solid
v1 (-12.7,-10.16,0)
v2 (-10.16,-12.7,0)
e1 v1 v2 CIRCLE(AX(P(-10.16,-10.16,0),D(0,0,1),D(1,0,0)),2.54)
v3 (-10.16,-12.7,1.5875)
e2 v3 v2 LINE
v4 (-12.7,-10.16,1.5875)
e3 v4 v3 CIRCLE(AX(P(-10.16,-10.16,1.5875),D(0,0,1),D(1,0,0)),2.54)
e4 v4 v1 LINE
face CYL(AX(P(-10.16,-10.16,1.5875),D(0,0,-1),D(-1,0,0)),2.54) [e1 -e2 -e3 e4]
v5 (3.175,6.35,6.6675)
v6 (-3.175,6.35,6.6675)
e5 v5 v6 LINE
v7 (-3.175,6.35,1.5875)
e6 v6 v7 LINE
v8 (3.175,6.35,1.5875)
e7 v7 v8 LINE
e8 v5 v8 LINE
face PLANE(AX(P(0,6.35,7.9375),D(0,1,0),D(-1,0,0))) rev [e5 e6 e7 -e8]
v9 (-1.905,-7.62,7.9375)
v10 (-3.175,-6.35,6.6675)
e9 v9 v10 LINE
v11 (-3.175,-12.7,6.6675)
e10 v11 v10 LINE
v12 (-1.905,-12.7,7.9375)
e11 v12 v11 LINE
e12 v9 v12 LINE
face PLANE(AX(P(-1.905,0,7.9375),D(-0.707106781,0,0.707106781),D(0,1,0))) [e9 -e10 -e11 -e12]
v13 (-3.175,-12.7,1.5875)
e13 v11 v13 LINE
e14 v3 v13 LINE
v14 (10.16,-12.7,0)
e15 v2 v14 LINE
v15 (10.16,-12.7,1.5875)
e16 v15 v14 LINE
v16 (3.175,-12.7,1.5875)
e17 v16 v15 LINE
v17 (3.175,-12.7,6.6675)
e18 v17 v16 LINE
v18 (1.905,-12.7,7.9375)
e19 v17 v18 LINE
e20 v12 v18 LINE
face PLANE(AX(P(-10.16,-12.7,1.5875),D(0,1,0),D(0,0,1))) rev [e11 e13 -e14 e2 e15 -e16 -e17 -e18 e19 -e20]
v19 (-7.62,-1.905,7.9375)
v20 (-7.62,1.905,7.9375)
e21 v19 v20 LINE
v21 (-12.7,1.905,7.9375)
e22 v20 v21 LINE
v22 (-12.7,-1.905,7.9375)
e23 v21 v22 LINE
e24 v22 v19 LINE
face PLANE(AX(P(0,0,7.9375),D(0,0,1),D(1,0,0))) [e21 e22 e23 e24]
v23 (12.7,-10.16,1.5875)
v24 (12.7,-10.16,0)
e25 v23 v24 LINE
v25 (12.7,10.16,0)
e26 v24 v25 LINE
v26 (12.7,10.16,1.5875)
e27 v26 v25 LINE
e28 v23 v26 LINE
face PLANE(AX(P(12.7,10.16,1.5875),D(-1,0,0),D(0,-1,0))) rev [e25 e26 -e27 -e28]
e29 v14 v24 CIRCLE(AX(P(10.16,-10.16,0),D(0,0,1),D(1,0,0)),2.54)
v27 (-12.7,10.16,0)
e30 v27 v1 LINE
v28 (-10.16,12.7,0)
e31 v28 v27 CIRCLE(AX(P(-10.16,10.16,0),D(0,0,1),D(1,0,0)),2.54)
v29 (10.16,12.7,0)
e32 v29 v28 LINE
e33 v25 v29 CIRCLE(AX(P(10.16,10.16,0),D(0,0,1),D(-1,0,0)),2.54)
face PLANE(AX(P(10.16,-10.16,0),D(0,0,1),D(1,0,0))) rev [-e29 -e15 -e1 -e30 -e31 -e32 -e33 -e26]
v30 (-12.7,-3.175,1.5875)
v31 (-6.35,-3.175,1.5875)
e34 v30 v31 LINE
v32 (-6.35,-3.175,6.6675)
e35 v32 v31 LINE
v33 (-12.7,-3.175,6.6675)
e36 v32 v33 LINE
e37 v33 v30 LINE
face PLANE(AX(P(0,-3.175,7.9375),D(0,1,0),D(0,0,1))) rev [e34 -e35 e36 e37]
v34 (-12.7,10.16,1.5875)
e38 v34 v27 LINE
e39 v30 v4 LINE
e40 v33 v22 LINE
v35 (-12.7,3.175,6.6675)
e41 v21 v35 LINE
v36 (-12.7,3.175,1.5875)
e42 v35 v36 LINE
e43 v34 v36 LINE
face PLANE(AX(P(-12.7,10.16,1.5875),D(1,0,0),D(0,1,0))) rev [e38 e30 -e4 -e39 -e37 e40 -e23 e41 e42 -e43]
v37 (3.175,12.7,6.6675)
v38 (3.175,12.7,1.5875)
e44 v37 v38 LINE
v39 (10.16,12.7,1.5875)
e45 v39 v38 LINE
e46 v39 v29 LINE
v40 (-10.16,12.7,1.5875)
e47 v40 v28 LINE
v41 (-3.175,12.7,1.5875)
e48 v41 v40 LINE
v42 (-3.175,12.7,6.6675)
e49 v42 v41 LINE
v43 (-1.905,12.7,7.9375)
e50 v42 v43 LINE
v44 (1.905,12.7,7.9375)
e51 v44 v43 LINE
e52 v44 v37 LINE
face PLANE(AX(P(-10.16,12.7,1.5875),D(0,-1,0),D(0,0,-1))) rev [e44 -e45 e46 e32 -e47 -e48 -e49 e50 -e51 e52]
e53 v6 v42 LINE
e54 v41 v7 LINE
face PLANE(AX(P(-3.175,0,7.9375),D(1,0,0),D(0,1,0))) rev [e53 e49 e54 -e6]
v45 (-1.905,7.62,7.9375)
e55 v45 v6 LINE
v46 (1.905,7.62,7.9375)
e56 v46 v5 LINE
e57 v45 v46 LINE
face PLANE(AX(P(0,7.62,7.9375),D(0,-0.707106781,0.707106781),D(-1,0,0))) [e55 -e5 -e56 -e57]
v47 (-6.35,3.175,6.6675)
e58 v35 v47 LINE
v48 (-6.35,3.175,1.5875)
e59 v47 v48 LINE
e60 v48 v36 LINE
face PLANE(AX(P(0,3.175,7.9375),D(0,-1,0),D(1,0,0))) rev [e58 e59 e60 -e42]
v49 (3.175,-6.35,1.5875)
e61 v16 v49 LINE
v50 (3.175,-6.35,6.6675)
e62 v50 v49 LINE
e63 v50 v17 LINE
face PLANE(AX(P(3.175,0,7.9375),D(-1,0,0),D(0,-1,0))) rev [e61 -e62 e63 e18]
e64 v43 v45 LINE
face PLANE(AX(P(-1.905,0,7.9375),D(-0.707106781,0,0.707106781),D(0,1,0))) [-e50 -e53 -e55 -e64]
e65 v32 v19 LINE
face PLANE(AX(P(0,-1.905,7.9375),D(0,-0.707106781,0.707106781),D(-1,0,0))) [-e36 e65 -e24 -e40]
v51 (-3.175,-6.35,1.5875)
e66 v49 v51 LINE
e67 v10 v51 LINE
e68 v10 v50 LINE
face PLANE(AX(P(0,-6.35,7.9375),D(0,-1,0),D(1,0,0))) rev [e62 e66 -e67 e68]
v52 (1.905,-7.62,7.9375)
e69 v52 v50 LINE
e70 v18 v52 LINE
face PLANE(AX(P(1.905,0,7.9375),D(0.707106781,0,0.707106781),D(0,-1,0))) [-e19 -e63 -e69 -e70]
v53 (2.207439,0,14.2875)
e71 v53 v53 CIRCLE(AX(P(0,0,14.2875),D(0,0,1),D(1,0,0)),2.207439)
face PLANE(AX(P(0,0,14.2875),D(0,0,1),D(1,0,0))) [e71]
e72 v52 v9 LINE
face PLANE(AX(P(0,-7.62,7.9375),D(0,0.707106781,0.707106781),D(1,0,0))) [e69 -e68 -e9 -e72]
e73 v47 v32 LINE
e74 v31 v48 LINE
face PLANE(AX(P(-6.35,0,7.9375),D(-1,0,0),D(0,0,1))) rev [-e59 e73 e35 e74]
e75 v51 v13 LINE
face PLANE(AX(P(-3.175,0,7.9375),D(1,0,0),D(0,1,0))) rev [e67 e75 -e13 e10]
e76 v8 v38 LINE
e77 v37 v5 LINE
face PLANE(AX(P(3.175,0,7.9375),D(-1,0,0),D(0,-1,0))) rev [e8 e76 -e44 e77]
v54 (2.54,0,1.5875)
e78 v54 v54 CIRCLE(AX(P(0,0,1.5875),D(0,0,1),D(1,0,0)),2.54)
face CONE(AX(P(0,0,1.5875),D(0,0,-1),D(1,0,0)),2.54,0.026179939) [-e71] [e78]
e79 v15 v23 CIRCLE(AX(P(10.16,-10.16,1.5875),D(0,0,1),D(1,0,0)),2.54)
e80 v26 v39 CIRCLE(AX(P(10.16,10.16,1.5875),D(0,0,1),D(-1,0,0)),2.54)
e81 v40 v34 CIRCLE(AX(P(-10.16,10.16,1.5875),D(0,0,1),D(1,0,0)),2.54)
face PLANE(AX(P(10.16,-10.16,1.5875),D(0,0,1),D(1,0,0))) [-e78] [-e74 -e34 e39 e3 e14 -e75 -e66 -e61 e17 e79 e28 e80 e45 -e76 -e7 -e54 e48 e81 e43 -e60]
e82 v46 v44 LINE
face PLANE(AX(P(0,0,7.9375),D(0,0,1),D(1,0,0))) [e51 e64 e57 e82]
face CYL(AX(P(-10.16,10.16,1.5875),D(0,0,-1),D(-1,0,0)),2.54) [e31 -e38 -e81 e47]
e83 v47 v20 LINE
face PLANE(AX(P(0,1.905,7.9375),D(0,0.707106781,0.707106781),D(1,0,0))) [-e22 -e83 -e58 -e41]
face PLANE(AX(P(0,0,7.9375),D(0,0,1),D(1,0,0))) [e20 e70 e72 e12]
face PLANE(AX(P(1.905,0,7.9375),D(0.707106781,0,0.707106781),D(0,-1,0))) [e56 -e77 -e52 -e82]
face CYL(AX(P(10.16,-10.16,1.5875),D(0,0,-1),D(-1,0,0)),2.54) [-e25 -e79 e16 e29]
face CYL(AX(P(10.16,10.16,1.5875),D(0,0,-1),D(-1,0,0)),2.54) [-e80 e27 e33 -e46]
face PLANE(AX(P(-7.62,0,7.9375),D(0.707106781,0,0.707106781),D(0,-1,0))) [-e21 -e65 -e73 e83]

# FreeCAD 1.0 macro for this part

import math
import FreeCAD as App
import Part
import Sketcher
from FreeCAD import Vector
Q = App.Units.Quantity


def edges_at(feature, points):
    """Names of the edges that pass closest to the given points."""
    edges = feature.Shape.Edges
    near = lambda p: min(range(len(edges)), key=lambda i: edges[i].distToShape(Part.Vertex(*p))[0])
    return sorted({f"Edge{near(p) + 1}" for p in points})


def add_polygon(sketch, points):
    """Adds a closed chain of lines whose ends are joined by coincident constraints."""
    first, n = sketch.GeometryCount, len(points)
    for a, b in zip(points, points[1:] + points[:1]):
        sketch.addGeometry(Part.LineSegment(App.Vector(*a, 0), App.Vector(*b, 0)), False)
    for i in range(n):
        sketch.addConstraint(Sketcher.Constraint("Coincident", first + i, 2, first + (i + 1) % n, 1))

doc = App.newDocument("Part")
body = doc.addObject("PartDesign::Body", "Body")

# Sketch on XY plane
sketch1 = body.newObject("Sketcher::SketchObject", "Sketch")
sketch1.AttachmentSupport = (doc.getObject("XY_Plane"), [""])
sketch1.MapMode = "FlatFace"
sketch1.addGeometry([
    Part.LineSegment(Vector(10.16, 12.7, 0), Vector(-10.16, 12.7, 0)),  # 0
    Part.ArcOfCircle(Part.Circle(Vector(-10.16, 10.16, 0), Vector(0, 0, 1), 2.54), math.radians(90), math.radians(180)),  # 1
    Part.LineSegment(Vector(-12.7, 10.16, 0), Vector(-12.7, -10.16, 0)),  # 2
    Part.ArcOfCircle(Part.Circle(Vector(-10.16, -10.16, 0), Vector(0, 0, 1), 2.54), math.radians(-180), math.radians(-90)),  # 3
    Part.LineSegment(Vector(-10.16, -12.7, 0), Vector(10.16, -12.7, 0)),  # 4
    Part.ArcOfCircle(Part.Circle(Vector(10.16, -10.16, 0), Vector(0, 0, 1), 2.54), math.radians(-90), math.radians(0)),  # 5
    Part.LineSegment(Vector(12.7, -10.16, 0), Vector(12.7, 10.16, 0)),  # 6
    Part.ArcOfCircle(Part.Circle(Vector(10.16, 10.16, 0), Vector(0, 0, 1), 2.54), math.radians(0), math.radians(90)),  # 7
], False)
sketch1.addConstraint([
    Sketcher.Constraint("Tangent", 0, 2, 1, 1),
    Sketcher.Constraint("Tangent", 1, 2, 2, 1),
    Sketcher.Constraint("Tangent", 2, 2, 3, 1),
    Sketcher.Constraint("Tangent", 3, 2, 4, 1),
    Sketcher.Constraint("Tangent", 4, 2, 5, 1),
    Sketcher.Constraint("Tangent", 5, 2, 6, 1),
    Sketcher.Constraint("Tangent", 6, 2, 7, 1),
    Sketcher.Constraint("Tangent", 7, 2, 0, 1),
    Sketcher.Constraint("Horizontal", 0),
    Sketcher.Constraint("Vertical", 2),
    Sketcher.Constraint("Horizontal", 4),
    Sketcher.Constraint("Vertical", 6),
    Sketcher.Constraint("Equal", 1, 3),
    Sketcher.Constraint("Equal", 3, 5),
    Sketcher.Constraint("Equal", 5, 7),
    Sketcher.Constraint("Symmetric", 1, 3, 5, 3, -1, 1),
    Sketcher.Constraint("Equal", 4, 2),
    Sketcher.Constraint("Radius", 1, Q("0.1 in")),
    Sketcher.Constraint("DistanceX", 0, 2, 0, 1, Q("0.8 in")),
])
pad1 = body.newObject("PartDesign::Pad", "Pad")
pad1.Profile = sketch1
pad1.Length = Q("0.0625 in")

# Sketch on XY plane
sketch2 = body.newObject("Sketcher::SketchObject", "Sketch001")
sketch2.AttachmentSupport = (doc.getObject("XY_Plane"), [""])
sketch2.MapMode = "FlatFace"
sketch2.AttachmentOffset = App.Placement(Vector(0, 0, 0.0625 * 25.4), App.Rotation())
add_polygon(sketch2, [(-3.175, -6.35), (-3.175, -12.7), (3.175, -12.7), (3.175, -6.35)])  # lines 0-3
add_polygon(sketch2, [(-12.7, 3.175), (-12.7, -3.175), (-6.35, -3.175), (-6.35, 3.175)])  # lines 4-7
add_polygon(sketch2, [(-3.175, 12.7), (-3.175, 6.35), (3.175, 6.35), (3.175, 12.7)])  # lines 8-11
sketch2.addConstraint([
    Sketcher.Constraint("Vertical", 0),
    Sketcher.Constraint("Horizontal", 1),
    Sketcher.Constraint("Vertical", 2),
    Sketcher.Constraint("Horizontal", 3),
    Sketcher.Constraint("Vertical", 4),
    Sketcher.Constraint("Horizontal", 5),
    Sketcher.Constraint("Vertical", 6),
    Sketcher.Constraint("Horizontal", 7),
    Sketcher.Constraint("Vertical", 8),
    Sketcher.Constraint("Horizontal", 9),
    Sketcher.Constraint("Vertical", 10),
    Sketcher.Constraint("Horizontal", 11),
    Sketcher.Constraint("Symmetric", 2, 2, 8, 2, -1, 1),
    Sketcher.Constraint("Symmetric", 0, 2, 10, 2, -1, 1),
    Sketcher.Constraint("Vertical", 3, 2, 8, 2),
    Sketcher.Constraint("Equal", 3, 5),
    Sketcher.Constraint("Equal", 11, 0),
    Sketcher.Constraint("Equal", 2, 4),
    Sketcher.Constraint("DistanceX", 1, 1, 1, 2, Q("0.25 in")),
    Sketcher.Constraint("DistanceY", 0, 2, -1, 1, Q("0.5 in")),
    Sketcher.Constraint("DistanceX", 4, 2, -1, 1, Q("0.5 in")),
    Sketcher.Constraint("DistanceY", 4, 2, -1, 1, Q("0.125 in")),
])
pad2 = body.newObject("PartDesign::Pad", "Pad001")
pad2.Profile = sketch2
pad2.Length = Q("0.25 in")

# Sketch on XY plane
sketch3 = body.newObject("Sketcher::SketchObject", "Sketch002")
sketch3.AttachmentSupport = (doc.getObject("XY_Plane"), [""])
sketch3.MapMode = "FlatFace"
sketch3.AttachmentOffset = App.Placement(Vector(0, 0, 0.0625 * 25.4), App.Rotation())
sketch3.addGeometry(Part.Circle(Vector(0, 0, 0), Vector(0, 0, 1), 2.54), False)
sketch3.addConstraint([
    Sketcher.Constraint("Coincident", 0, 3, -1, 1),
    Sketcher.Constraint("Diameter", 0, Q("0.2 in")),
])
pad3 = body.newObject("PartDesign::Pad", "Pad002")
pad3.Profile = sketch3
pad3.Length = Q("0.5 in")
pad3.TaperAngle = -1.5
doc.recompute()

chamfer = body.newObject("PartDesign::Chamfer", "Chamfer")
chamfer.Base = (pad3, edges_at(pad3, [
    (3.175, -9.525, 7.938),
    (0, -6.35, 7.938),
    (-3.175, -9.525, 7.938),
    (-6.35, 0, 7.938),
    (-9.525, 3.175, 7.938),
    (-9.525, -3.175, 7.938),
    (-3.175, 9.525, 7.938),
    (0, 6.35, 7.938),
    (3.175, 9.525, 7.938),
]))
chamfer.Size = Q("0.05 in")

doc.recompute()
